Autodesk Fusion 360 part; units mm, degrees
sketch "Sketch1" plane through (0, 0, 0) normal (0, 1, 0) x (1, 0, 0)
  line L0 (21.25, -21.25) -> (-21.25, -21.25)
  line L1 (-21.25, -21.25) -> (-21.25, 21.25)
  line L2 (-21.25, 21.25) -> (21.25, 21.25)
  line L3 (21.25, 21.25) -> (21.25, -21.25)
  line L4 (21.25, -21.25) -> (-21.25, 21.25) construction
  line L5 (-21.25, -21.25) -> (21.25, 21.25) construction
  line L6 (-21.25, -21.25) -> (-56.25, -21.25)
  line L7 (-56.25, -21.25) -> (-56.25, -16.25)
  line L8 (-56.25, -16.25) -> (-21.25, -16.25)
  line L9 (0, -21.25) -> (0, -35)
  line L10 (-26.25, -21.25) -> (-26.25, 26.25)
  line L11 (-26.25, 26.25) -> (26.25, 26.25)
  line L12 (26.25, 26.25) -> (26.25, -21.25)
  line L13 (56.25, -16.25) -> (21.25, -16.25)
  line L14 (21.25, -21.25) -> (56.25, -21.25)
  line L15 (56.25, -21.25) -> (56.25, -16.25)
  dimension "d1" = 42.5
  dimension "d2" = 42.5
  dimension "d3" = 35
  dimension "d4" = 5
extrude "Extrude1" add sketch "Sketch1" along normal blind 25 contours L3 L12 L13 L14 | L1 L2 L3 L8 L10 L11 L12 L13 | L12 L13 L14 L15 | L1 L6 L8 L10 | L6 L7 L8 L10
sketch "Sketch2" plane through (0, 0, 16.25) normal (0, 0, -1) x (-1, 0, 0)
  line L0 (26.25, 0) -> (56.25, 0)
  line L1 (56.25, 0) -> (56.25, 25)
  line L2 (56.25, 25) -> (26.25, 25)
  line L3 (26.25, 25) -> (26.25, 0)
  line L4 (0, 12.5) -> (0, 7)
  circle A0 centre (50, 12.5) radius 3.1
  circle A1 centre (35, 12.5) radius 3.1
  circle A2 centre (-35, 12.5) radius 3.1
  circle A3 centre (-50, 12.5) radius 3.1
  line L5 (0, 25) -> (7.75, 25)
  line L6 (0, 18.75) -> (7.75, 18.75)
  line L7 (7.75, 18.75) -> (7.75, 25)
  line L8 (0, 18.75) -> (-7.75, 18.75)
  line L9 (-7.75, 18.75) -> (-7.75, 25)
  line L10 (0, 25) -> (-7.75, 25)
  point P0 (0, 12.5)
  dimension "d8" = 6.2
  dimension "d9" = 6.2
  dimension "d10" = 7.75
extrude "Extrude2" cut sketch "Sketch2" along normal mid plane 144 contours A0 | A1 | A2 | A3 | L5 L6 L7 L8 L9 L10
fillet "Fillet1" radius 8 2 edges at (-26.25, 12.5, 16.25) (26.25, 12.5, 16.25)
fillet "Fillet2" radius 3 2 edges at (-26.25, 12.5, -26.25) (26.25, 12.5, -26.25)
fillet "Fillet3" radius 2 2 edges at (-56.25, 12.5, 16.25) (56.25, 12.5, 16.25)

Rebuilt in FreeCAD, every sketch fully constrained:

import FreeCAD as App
import Part
import Sketcher

V = App.Vector
Q = App.Units.Quantity


def edges_at(feature, points):
    """Names of the edges that pass closest to the given points."""
    edges = feature.Shape.Edges
    near = lambda p: min(range(len(edges)), key=lambda i: edges[i].distToShape(Part.Vertex(*p))[0])
    return sorted({f"Edge{near(p) + 1}" for p in points})

doc = App.newDocument("Part")
body = doc.addObject("PartDesign::Body", "Body")

sketch1 = body.newObject("Sketcher::SketchObject", "Sketch")
sketch1.AttachmentSupport = (doc.getObject("XZ_Plane"), [""])
sketch1.MapMode = "FlatFace"
sketch1.addGeometry(Part.LineSegment(V(21.25, 21.25, 0), V(56.25, 21.25, 0)), False)
sketch1.addGeometry(Part.LineSegment(V(56.25, 21.25, 0), V(56.25, 16.25, 0)), False)
sketch1.addGeometry(Part.LineSegment(V(56.25, 16.25, 0), V(26.25, 16.25, 0)), False)
sketch1.addGeometry(Part.LineSegment(V(26.25, 16.25, 0), V(26.25, -26.25, 0)), False)
sketch1.addGeometry(Part.LineSegment(V(26.25, -26.25, 0), V(-26.25, -26.25, 0)), False)
sketch1.addGeometry(Part.LineSegment(V(-26.25, -26.25, 0), V(-26.25, 16.25, 0)), False)
sketch1.addGeometry(Part.LineSegment(V(-26.25, 16.25, 0), V(-56.25, 16.25, 0)), False)
sketch1.addGeometry(Part.LineSegment(V(-56.25, 16.25, 0), V(-56.25, 21.25, 0)), False)
sketch1.addGeometry(Part.LineSegment(V(-56.25, 21.25, 0), V(-21.25, 21.25, 0)), False)
sketch1.addGeometry(Part.LineSegment(V(-21.25, 21.25, 0), V(-21.25, -21.25, 0)), False)
sketch1.addGeometry(Part.LineSegment(V(-21.25, -21.25, 0), V(21.25, -21.25, 0)), False)
sketch1.addGeometry(Part.LineSegment(V(21.25, -21.25, 0), V(21.25, 21.25, 0)), False)
sketch1.addConstraint(Sketcher.Constraint("Coincident", 0, 2, 1, 1))
sketch1.addConstraint(Sketcher.Constraint("Coincident", 1, 2, 2, 1))
sketch1.addConstraint(Sketcher.Constraint("Coincident", 2, 2, 3, 1))
sketch1.addConstraint(Sketcher.Constraint("Coincident", 3, 2, 4, 1))
sketch1.addConstraint(Sketcher.Constraint("Coincident", 4, 2, 5, 1))
sketch1.addConstraint(Sketcher.Constraint("Coincident", 5, 2, 6, 1))
sketch1.addConstraint(Sketcher.Constraint("Coincident", 6, 2, 7, 1))
sketch1.addConstraint(Sketcher.Constraint("Coincident", 7, 2, 8, 1))
sketch1.addConstraint(Sketcher.Constraint("Coincident", 8, 2, 9, 1))
sketch1.addConstraint(Sketcher.Constraint("Coincident", 9, 2, 10, 1))
sketch1.addConstraint(Sketcher.Constraint("Coincident", 10, 2, 11, 1))
sketch1.addConstraint(Sketcher.Constraint("Coincident", 11, 2, 0, 1))
sketch1.addConstraint(Sketcher.Constraint("Horizontal", 0))
sketch1.addConstraint(Sketcher.Constraint("Vertical", 1))
sketch1.addConstraint(Sketcher.Constraint("Horizontal", 2))
sketch1.addConstraint(Sketcher.Constraint("Vertical", 3))
sketch1.addConstraint(Sketcher.Constraint("Horizontal", 4))
sketch1.addConstraint(Sketcher.Constraint("Vertical", 5))
sketch1.addConstraint(Sketcher.Constraint("Horizontal", 6))
sketch1.addConstraint(Sketcher.Constraint("Vertical", 7))
sketch1.addConstraint(Sketcher.Constraint("Horizontal", 8))
sketch1.addConstraint(Sketcher.Constraint("Vertical", 9))
sketch1.addConstraint(Sketcher.Constraint("Horizontal", 10))
sketch1.addConstraint(Sketcher.Constraint("Vertical", 11))
sketch1.addConstraint(Sketcher.Constraint("Symmetric", 8, 2, 10, 2, -1, 1))
sketch1.addConstraint(Sketcher.Constraint("Symmetric", 2, 2, 5, 2, -2))
sketch1.addConstraint(Sketcher.Constraint("Symmetric", 0, 2, 7, 2, -2))
sketch1.addConstraint(Sketcher.Constraint("Equal", 10, 3))
sketch1.addConstraint(Sketcher.Constraint("Equal", 5, 9))
sketch1.addConstraint(Sketcher.Constraint("DistanceX", 0, 1, 0, 2, Q("35 mm")))
sketch1.addConstraint(Sketcher.Constraint("DistanceY", 1, 2, 1, 1, Q("5 mm")))
sketch1.addConstraint(Sketcher.Constraint("DistanceX", 10, 1, 10, 2, Q("42.5 mm")))
sketch1.addConstraint(Sketcher.Constraint("DistanceX", 5, 2, 8, 2, Q("5 mm")))
pad1 = body.newObject("PartDesign::Pad", "Pad")
pad1.Profile = sketch1
pad1.Length = 25
pad1.Reversed = True

sketch2 = body.newObject("Sketcher::SketchObject", "Sketch001")
sketch2.AttachmentSupport = (doc.getObject("XY_Plane"), [""])
sketch2.MapMode = "FlatFace"
sketch2.AttachmentOffset = App.Placement(V(0, 0, 16.25), App.Rotation())
sketch2.addGeometry(Part.Circle(V(-50, 12.5, 0), V(0, 0, 1), 3.1), False)
sketch2.addGeometry(Part.Circle(V(-35, 12.5, 0), V(0, 0, 1), 3.1), False)
sketch2.addGeometry(Part.Circle(V(35, 12.5, 0), V(0, 0, 1), 3.1), False)
sketch2.addGeometry(Part.Circle(V(50, 12.5, 0), V(0, 0, 1), 3.1), False)
sketch2.addGeometry(Part.LineSegment(V(-7.75, 25, 0), V(7.75, 25, 0)), False)
sketch2.addGeometry(Part.LineSegment(V(7.75, 25, 0), V(7.75, 18.75, 0)), False)
sketch2.addGeometry(Part.LineSegment(V(7.75, 18.75, 0), V(-7.75, 18.75, 0)), False)
sketch2.addGeometry(Part.LineSegment(V(-7.75, 18.75, 0), V(-7.75, 25, 0)), False)
sketch2.addConstraint(Sketcher.Constraint("Coincident", 4, 2, 5, 1))
sketch2.addConstraint(Sketcher.Constraint("Coincident", 5, 2, 6, 1))
sketch2.addConstraint(Sketcher.Constraint("Coincident", 6, 2, 7, 1))
sketch2.addConstraint(Sketcher.Constraint("Coincident", 7, 2, 4, 1))
sketch2.addConstraint(Sketcher.Constraint("Horizontal", 4))
sketch2.addConstraint(Sketcher.Constraint("Vertical", 5))
sketch2.addConstraint(Sketcher.Constraint("Horizontal", 6))
sketch2.addConstraint(Sketcher.Constraint("Vertical", 7))
sketch2.addConstraint(Sketcher.Constraint("Equal", 0, 1))
sketch2.addConstraint(Sketcher.Constraint("Equal", 1, 2))
sketch2.addConstraint(Sketcher.Constraint("Equal", 2, 3))
sketch2.addConstraint(Sketcher.Constraint("Symmetric", 1, 3, 2, 3, -2))
sketch2.addConstraint(Sketcher.Constraint("Symmetric", 0, 3, 3, 3, -2))
sketch2.addConstraint(Sketcher.Constraint("Horizontal", 0, 3, 1, 3))
sketch2.addConstraint(Sketcher.Constraint("Diameter", 0, Q("6.2 mm")))
sketch2.addConstraint(Sketcher.Constraint("DistanceX", -1, 1, 4, 2, Q("7.75 mm")))
sketch2.addConstraint(Sketcher.Constraint("DistanceX", 6, 2, -1, 1, Q("7.75 mm")))
sketch2.addConstraint(Sketcher.Constraint("DistanceX", 0, 3, -1, 1, Q("50 mm")))
sketch2.addConstraint(Sketcher.Constraint("DistanceX", 1, 3, -1, 1, Q("35 mm")))
sketch2.addConstraint(Sketcher.Constraint("DistanceY", -1, 1, 4, 2, Q("25 mm")))
sketch2.addConstraint(Sketcher.Constraint("DistanceY", 5, 2, 5, 1, Q("6.25 mm")))
sketch2.addConstraint(Sketcher.Constraint("DistanceY", -1, 1, 0, 3, Q("12.5 mm")))
pocket1 = body.newObject("PartDesign::Pocket", "Pocket")
pocket1.Profile = sketch2
pocket1.Length = 144
pocket1.Midplane = True
doc.recompute()

fillet = body.newObject("PartDesign::Fillet", "Fillet")
fillet.Base = (pocket1, edges_at(pocket1, [(-26.25, 12.5, 16.25), (26.25, 12.5, 16.25)]))
fillet.Radius = 8
doc.recompute()

fillet2 = body.newObject("PartDesign::Fillet", "Fillet001")
fillet2.Base = (fillet, edges_at(fillet, [(-26.25, 12.5, -26.25), (26.25, 12.5, -26.25)]))
fillet2.Radius = 3
doc.recompute()

fillet3 = body.newObject("PartDesign::Fillet", "Fillet002")
fillet3.Base = (fillet2, edges_at(fillet2, [(-56.25, 12.5, 16.25), (56.25, 12.5, 16.25)]))
fillet3.Radius = 2

doc.recompute()
